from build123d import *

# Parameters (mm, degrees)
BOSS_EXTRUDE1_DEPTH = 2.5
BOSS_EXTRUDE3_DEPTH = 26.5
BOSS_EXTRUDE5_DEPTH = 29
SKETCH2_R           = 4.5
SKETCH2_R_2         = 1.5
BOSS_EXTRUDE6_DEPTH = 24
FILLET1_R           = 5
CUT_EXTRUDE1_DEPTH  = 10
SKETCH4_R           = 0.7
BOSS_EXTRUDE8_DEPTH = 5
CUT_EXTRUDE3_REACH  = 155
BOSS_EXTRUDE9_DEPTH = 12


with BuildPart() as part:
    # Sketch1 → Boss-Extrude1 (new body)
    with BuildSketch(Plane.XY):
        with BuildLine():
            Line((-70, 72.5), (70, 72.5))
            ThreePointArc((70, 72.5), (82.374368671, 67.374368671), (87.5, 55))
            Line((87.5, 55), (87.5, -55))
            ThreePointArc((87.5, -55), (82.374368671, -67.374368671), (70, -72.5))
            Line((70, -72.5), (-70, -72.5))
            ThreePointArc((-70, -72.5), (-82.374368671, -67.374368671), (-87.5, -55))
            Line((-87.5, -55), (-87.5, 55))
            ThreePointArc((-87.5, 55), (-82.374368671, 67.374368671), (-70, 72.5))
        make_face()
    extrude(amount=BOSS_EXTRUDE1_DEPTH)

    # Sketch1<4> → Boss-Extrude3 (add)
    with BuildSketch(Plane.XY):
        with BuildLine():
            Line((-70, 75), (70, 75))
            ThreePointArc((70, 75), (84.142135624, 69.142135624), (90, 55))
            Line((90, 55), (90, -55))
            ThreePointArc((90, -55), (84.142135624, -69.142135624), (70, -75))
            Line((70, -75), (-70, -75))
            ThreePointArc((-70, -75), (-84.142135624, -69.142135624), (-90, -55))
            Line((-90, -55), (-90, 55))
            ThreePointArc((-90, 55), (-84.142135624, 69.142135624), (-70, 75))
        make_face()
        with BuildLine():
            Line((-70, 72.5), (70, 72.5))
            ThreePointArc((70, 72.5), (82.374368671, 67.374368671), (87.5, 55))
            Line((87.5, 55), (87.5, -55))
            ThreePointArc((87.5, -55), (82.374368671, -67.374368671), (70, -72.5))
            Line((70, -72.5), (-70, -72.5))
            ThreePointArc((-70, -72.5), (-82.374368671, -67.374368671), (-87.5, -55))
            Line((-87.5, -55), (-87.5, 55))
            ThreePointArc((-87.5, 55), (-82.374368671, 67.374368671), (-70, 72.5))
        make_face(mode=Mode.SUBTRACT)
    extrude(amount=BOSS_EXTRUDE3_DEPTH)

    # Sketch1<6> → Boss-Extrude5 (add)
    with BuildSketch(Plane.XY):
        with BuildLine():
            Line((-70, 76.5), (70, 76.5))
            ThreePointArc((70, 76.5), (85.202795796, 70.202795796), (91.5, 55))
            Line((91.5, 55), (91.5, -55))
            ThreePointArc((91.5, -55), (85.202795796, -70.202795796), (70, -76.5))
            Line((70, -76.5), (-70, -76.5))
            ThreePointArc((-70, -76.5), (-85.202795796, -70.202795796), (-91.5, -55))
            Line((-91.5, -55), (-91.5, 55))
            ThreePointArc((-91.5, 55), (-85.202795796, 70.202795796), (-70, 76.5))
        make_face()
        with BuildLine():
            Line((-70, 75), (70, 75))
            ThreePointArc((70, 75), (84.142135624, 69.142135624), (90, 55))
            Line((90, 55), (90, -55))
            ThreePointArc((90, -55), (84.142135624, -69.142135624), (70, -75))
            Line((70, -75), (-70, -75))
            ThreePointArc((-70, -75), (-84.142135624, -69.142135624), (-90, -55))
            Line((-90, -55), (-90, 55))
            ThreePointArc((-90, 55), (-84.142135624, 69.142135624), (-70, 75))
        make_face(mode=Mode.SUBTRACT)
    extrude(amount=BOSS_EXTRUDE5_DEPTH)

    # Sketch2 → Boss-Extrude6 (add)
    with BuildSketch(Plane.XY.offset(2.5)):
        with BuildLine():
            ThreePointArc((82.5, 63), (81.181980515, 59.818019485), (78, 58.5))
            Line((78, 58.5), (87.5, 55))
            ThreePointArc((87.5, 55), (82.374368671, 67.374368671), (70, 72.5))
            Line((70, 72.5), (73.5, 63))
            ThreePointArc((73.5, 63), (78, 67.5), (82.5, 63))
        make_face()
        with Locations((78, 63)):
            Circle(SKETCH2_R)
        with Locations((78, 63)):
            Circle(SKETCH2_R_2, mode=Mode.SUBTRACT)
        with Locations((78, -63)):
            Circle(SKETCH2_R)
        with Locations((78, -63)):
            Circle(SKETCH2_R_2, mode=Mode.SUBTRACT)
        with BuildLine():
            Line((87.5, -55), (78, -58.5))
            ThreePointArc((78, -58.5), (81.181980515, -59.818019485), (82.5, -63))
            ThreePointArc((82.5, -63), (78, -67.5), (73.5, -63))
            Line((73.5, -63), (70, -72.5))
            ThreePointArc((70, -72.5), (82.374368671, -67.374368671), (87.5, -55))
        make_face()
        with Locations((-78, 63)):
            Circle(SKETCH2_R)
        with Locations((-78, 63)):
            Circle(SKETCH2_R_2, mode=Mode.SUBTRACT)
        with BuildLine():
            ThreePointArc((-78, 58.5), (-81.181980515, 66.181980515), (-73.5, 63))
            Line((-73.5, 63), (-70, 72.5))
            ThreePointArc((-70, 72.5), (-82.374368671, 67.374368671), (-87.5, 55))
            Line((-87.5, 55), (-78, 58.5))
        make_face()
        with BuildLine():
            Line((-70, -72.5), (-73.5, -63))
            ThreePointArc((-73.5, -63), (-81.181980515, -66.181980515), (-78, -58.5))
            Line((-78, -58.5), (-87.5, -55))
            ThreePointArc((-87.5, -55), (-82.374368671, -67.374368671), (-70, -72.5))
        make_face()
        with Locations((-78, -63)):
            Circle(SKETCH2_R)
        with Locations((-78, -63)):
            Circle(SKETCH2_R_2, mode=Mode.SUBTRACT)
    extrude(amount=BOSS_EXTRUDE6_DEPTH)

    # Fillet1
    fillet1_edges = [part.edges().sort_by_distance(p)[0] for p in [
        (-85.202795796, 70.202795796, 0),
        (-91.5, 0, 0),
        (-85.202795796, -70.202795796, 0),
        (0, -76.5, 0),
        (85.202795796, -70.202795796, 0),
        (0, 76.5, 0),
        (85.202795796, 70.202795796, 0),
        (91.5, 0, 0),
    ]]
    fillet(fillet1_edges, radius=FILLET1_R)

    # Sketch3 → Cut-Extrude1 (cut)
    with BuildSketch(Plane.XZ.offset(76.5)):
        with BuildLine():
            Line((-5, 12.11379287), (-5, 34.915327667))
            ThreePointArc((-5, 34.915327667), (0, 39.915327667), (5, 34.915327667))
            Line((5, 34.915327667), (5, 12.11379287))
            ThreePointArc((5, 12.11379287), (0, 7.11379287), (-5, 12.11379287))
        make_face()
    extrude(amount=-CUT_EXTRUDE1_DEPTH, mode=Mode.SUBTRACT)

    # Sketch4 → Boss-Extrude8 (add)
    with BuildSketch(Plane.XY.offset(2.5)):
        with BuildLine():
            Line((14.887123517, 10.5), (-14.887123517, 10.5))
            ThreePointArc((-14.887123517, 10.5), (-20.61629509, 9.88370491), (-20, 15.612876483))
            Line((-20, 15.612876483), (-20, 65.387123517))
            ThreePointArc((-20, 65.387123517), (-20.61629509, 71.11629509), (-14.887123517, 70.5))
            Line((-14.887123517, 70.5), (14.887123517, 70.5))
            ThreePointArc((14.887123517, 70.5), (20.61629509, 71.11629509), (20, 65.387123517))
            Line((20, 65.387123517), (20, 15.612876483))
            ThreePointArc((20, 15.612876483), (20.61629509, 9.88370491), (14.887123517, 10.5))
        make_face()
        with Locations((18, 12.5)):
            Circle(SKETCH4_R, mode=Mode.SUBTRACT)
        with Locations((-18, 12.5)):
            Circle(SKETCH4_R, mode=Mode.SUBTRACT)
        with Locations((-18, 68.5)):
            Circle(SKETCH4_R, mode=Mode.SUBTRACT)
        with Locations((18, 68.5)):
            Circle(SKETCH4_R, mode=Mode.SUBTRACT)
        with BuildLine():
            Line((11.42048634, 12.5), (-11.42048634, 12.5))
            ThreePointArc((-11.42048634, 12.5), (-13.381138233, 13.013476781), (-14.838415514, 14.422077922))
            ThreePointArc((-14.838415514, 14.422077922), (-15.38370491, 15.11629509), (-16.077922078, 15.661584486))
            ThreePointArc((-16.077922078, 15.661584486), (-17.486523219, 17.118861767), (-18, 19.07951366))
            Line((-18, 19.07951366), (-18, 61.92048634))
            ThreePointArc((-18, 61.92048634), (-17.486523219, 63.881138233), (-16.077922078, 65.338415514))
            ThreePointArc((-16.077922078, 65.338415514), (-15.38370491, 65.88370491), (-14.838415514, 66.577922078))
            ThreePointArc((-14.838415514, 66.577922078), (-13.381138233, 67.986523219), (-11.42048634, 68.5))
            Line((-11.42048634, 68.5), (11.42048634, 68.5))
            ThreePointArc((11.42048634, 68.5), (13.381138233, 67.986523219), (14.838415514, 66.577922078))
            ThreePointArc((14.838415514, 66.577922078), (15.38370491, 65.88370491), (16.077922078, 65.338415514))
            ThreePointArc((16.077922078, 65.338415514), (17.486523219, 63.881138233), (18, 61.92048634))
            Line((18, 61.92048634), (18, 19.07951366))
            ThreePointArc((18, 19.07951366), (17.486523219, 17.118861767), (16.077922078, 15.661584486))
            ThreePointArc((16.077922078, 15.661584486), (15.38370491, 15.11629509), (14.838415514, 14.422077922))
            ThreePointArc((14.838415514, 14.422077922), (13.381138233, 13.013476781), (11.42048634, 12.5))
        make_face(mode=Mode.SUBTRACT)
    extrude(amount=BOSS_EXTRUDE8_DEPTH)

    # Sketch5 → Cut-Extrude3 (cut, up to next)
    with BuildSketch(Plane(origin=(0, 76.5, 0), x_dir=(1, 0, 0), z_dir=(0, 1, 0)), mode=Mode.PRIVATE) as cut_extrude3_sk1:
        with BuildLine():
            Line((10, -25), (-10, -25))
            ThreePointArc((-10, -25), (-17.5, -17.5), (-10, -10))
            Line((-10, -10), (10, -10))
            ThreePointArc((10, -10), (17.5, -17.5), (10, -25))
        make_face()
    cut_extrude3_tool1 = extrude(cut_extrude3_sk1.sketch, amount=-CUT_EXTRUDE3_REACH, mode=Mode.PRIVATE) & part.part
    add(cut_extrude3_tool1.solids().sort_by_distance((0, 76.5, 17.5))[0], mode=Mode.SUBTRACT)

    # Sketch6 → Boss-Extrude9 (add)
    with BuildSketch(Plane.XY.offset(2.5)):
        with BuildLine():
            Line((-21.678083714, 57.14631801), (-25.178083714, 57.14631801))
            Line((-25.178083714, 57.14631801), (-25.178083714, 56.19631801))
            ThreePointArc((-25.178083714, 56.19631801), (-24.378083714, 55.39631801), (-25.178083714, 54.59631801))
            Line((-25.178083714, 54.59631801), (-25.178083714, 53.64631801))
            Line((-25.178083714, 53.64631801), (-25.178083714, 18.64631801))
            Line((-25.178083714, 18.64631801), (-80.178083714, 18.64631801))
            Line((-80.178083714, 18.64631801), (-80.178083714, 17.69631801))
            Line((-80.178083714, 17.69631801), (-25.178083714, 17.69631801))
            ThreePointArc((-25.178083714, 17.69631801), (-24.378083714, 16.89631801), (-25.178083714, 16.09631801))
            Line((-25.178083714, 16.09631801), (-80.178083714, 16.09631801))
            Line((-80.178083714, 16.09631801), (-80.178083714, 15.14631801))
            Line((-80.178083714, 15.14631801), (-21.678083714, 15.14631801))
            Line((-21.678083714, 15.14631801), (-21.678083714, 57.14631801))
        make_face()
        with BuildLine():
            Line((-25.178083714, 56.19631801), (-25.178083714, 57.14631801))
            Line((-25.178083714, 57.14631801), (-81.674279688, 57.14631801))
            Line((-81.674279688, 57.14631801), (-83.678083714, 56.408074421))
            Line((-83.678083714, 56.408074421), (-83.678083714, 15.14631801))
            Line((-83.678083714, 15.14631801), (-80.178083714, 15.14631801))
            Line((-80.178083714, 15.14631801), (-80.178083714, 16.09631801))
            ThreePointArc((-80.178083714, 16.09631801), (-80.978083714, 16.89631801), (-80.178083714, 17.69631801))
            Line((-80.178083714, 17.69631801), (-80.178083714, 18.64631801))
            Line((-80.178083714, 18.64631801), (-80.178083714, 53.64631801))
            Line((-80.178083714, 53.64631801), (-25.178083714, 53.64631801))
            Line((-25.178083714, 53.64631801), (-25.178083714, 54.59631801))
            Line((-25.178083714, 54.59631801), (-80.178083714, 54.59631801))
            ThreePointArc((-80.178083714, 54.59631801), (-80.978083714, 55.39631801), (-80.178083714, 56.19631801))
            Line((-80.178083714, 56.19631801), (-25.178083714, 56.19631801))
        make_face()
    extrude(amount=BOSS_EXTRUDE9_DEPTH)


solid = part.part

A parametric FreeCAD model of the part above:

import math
import FreeCAD as App
import Part
import Sketcher


def edges_at(feature, points):
    """Names of the edges that pass closest to the given points."""
    edges = feature.Shape.Edges
    near = lambda p: min(range(len(edges)), key=lambda i: edges[i].distToShape(Part.Vertex(*p))[0])
    return sorted({f"Edge{near(p) + 1}" for p in points})

doc = App.newDocument("Part")
body = doc.addObject("PartDesign::Body", "Body")

# Sketch on XY plane
sketch1 = body.newObject("Sketcher::SketchObject", "Sketch")
sketch1.AttachmentSupport = (doc.getObject("XY_Plane"), [""])
sketch1.MapMode = "FlatFace"
sketch1.addGeometry(Part.LineSegment(App.Vector(70, 72, 0), App.Vector(-70, 72, 0)), False)
sketch1.addGeometry(Part.ArcOfCircle(Part.Circle(App.Vector(-70, 55, 0), App.Vector(0, 0, 1), 17), math.radians(90), math.radians(180)), False)
sketch1.addGeometry(Part.LineSegment(App.Vector(-88, 55, 0), App.Vector(-88, -55, 0)), False)
sketch1.addGeometry(Part.ArcOfCircle(Part.Circle(App.Vector(-70, -55, 0), App.Vector(0, 0, 1), 17), math.radians(180), math.radians(270)), False)
sketch1.addGeometry(Part.LineSegment(App.Vector(-70, -72, 0), App.Vector(70, -72, 0)), False)
sketch1.addGeometry(Part.ArcOfCircle(Part.Circle(App.Vector(70, -55, 0), App.Vector(0, 0, 1), 17), math.radians(-90), math.radians(0)), False)
sketch1.addGeometry(Part.LineSegment(App.Vector(88, -55, 0), App.Vector(88, 55, 0)), False)
sketch1.addGeometry(Part.ArcOfCircle(Part.Circle(App.Vector(70, 55, 0), App.Vector(0, 0, 1), 17), math.radians(0), math.radians(90)), False)
sketch1.addConstraint(Sketcher.Constraint("Tangent", 0, 2, 1, 1))
sketch1.addConstraint(Sketcher.Constraint("Tangent", 1, 2, 2, 1))
sketch1.addConstraint(Sketcher.Constraint("Tangent", 2, 2, 3, 1))
sketch1.addConstraint(Sketcher.Constraint("Tangent", 3, 2, 4, 1))
sketch1.addConstraint(Sketcher.Constraint("Tangent", 4, 2, 5, 1))
sketch1.addConstraint(Sketcher.Constraint("Tangent", 5, 2, 6, 1))
sketch1.addConstraint(Sketcher.Constraint("Tangent", 6, 2, 7, 1))
sketch1.addConstraint(Sketcher.Constraint("Tangent", 7, 2, 0, 1))
sketch1.addConstraint(Sketcher.Constraint("Horizontal", 0))
sketch1.addConstraint(Sketcher.Constraint("Vertical", 2))
sketch1.addConstraint(Sketcher.Constraint("Horizontal", 4))
sketch1.addConstraint(Sketcher.Constraint("Vertical", 6))
sketch1.addConstraint(Sketcher.Constraint("Equal", 1, 3))
sketch1.addConstraint(Sketcher.Constraint("Equal", 3, 5))
sketch1.addConstraint(Sketcher.Constraint("Equal", 5, 7))
sketch1.addConstraint(Sketcher.Constraint("Symmetric", 1, 3, 5, 3, -1, 1))
sketch1.addConstraint(Sketcher.Constraint("Radius", 1, 17.5))
sketch1.addConstraint(Sketcher.Constraint("DistanceX", 0, 2, 0, 1, 140.0))
sketch1.addConstraint(Sketcher.Constraint("DistanceY", 2, 2, 2, 1, 110.0))
pad1 = body.newObject("PartDesign::Pad", "Pad")
pad1.Profile = sketch1
pad1.Length = 2.5

# Sketch on XY plane
sketch2 = body.newObject("Sketcher::SketchObject", "Sketch001")
sketch2.AttachmentSupport = (doc.getObject("XY_Plane"), [""])
sketch2.MapMode = "FlatFace"
sketch2.addGeometry(Part.LineSegment(App.Vector(70, 75, 0), App.Vector(-70, 75, 0)), False)
sketch2.addGeometry(Part.ArcOfCircle(Part.Circle(App.Vector(-70, 55, 0), App.Vector(0, 0, 1), 20), math.radians(90), math.radians(180)), False)
sketch2.addGeometry(Part.LineSegment(App.Vector(-90, 55, 0), App.Vector(-90, -55, 0)), False)
sketch2.addGeometry(Part.ArcOfCircle(Part.Circle(App.Vector(-70, -55, 0), App.Vector(0, 0, 1), 20), math.radians(180), math.radians(270)), False)
sketch2.addGeometry(Part.LineSegment(App.Vector(-70, -75, 0), App.Vector(70, -75, 0)), False)
sketch2.addGeometry(Part.ArcOfCircle(Part.Circle(App.Vector(70, -55, 0), App.Vector(0, 0, 1), 20), math.radians(-90), math.radians(0)), False)
sketch2.addGeometry(Part.LineSegment(App.Vector(90, -55, 0), App.Vector(90, 55, 0)), False)
sketch2.addGeometry(Part.ArcOfCircle(Part.Circle(App.Vector(70, 55, 0), App.Vector(0, 0, 1), 20), math.radians(0), math.radians(90)), False)
sketch2.addGeometry(Part.LineSegment(App.Vector(-70, 72, 0), App.Vector(70, 72, 0)), False)
sketch2.addGeometry(Part.ArcOfCircle(Part.Circle(App.Vector(70, 55, 0), App.Vector(0, 0, 1), 17), math.radians(0), math.radians(90)), False)
sketch2.addGeometry(Part.LineSegment(App.Vector(88, 55, 0), App.Vector(88, -55, 0)), False)
sketch2.addGeometry(Part.ArcOfCircle(Part.Circle(App.Vector(70, -55, 0), App.Vector(0, 0, 1), 17), math.radians(-90), math.radians(0)), False)
sketch2.addGeometry(Part.LineSegment(App.Vector(70, -72, 0), App.Vector(-70, -72, 0)), False)
sketch2.addGeometry(Part.ArcOfCircle(Part.Circle(App.Vector(-70, -55, 0), App.Vector(0, 0, 1), 17), math.radians(180), math.radians(270)), False)
sketch2.addGeometry(Part.LineSegment(App.Vector(-88, -55, 0), App.Vector(-88, 55, 0)), False)
sketch2.addGeometry(Part.ArcOfCircle(Part.Circle(App.Vector(-70, 55, 0), App.Vector(0, 0, 1), 17), math.radians(90), math.radians(180)), False)
sketch2.addConstraint(Sketcher.Constraint("Tangent", 0, 2, 1, 1))
sketch2.addConstraint(Sketcher.Constraint("Tangent", 1, 2, 2, 1))
sketch2.addConstraint(Sketcher.Constraint("Tangent", 2, 2, 3, 1))
sketch2.addConstraint(Sketcher.Constraint("Tangent", 3, 2, 4, 1))
sketch2.addConstraint(Sketcher.Constraint("Tangent", 4, 2, 5, 1))
sketch2.addConstraint(Sketcher.Constraint("Tangent", 5, 2, 6, 1))
sketch2.addConstraint(Sketcher.Constraint("Tangent", 6, 2, 7, 1))
sketch2.addConstraint(Sketcher.Constraint("Tangent", 7, 2, 0, 1))
sketch2.addConstraint(Sketcher.Constraint("Tangent", 8, 2, 9, 2))
sketch2.addConstraint(Sketcher.Constraint("Tangent", 9, 1, 10, 1))
sketch2.addConstraint(Sketcher.Constraint("Tangent", 10, 2, 11, 2))
sketch2.addConstraint(Sketcher.Constraint("Tangent", 11, 1, 12, 1))
sketch2.addConstraint(Sketcher.Constraint("Tangent", 12, 2, 13, 2))
sketch2.addConstraint(Sketcher.Constraint("Tangent", 13, 1, 14, 1))
sketch2.addConstraint(Sketcher.Constraint("Tangent", 14, 2, 15, 2))
sketch2.addConstraint(Sketcher.Constraint("Tangent", 15, 1, 8, 1))
sketch2.addConstraint(Sketcher.Constraint("Horizontal", 0))
sketch2.addConstraint(Sketcher.Constraint("Vertical", 2))
sketch2.addConstraint(Sketcher.Constraint("Horizontal", 4))
sketch2.addConstraint(Sketcher.Constraint("Vertical", 6))
sketch2.addConstraint(Sketcher.Constraint("Horizontal", 8))
sketch2.addConstraint(Sketcher.Constraint("Vertical", 10))
sketch2.addConstraint(Sketcher.Constraint("Horizontal", 12))
sketch2.addConstraint(Sketcher.Constraint("Vertical", 14))
sketch2.addConstraint(Sketcher.Constraint("Coincident", 9, 3, 7, 3))
sketch2.addConstraint(Sketcher.Constraint("Coincident", 11, 3, 5, 3))
sketch2.addConstraint(Sketcher.Constraint("Coincident", 13, 3, 3, 3))
sketch2.addConstraint(Sketcher.Constraint("Equal", 1, 3))
sketch2.addConstraint(Sketcher.Constraint("Equal", 3, 5))
sketch2.addConstraint(Sketcher.Constraint("Equal", 5, 7))
sketch2.addConstraint(Sketcher.Constraint("Equal", 13, 15))
sketch2.addConstraint(Sketcher.Constraint("Symmetric", 1, 3, 5, 3, -1, 1))
sketch2.addConstraint(Sketcher.Constraint("Radius", 1, 20.0))
sketch2.addConstraint(Sketcher.Constraint("Radius", 9, 17.5))
sketch2.addConstraint(Sketcher.Constraint("DistanceX", 0, 2, 0, 1, 140.0))
sketch2.addConstraint(Sketcher.Constraint("DistanceY", 2, 2, 2, 1, 110.0))
pad2 = body.newObject("PartDesign::Pad", "Pad001")
pad2.Profile = sketch2
pad2.Length = 26.5

# Sketch on XY plane
sketch3 = body.newObject("Sketcher::SketchObject", "Sketch002")
sketch3.AttachmentSupport = (doc.getObject("XY_Plane"), [""])
sketch3.MapMode = "FlatFace"
sketch3.addGeometry(Part.LineSegment(App.Vector(70, 76, 0), App.Vector(-70, 76, 0)), False)
sketch3.addGeometry(Part.ArcOfCircle(Part.Circle(App.Vector(-70, 55, 0), App.Vector(0, 0, 1), 21), math.radians(90), math.radians(180)), False)
sketch3.addGeometry(Part.LineSegment(App.Vector(-92, 55, 0), App.Vector(-92, -55, 0)), False)
sketch3.addGeometry(Part.ArcOfCircle(Part.Circle(App.Vector(-70, -55, 0), App.Vector(0, 0, 1), 21), math.radians(180), math.radians(270)), False)
sketch3.addGeometry(Part.LineSegment(App.Vector(-70, -76, 0), App.Vector(70, -76, 0)), False)
sketch3.addGeometry(Part.ArcOfCircle(Part.Circle(App.Vector(70, -55, 0), App.Vector(0, 0, 1), 21), math.radians(-90), math.radians(0)), False)
sketch3.addGeometry(Part.LineSegment(App.Vector(92, -55, 0), App.Vector(92, 55, 0)), False)
sketch3.addGeometry(Part.ArcOfCircle(Part.Circle(App.Vector(70, 55, 0), App.Vector(0, 0, 1), 21), math.radians(0), math.radians(90)), False)
sketch3.addGeometry(Part.LineSegment(App.Vector(-70, 75, 0), App.Vector(70, 75, 0)), False)
sketch3.addGeometry(Part.ArcOfCircle(Part.Circle(App.Vector(70, 55, 0), App.Vector(0, 0, 1), 20), math.radians(0), math.radians(90)), False)
sketch3.addGeometry(Part.LineSegment(App.Vector(90, 55, 0), App.Vector(90, -55, 0)), False)
sketch3.addGeometry(Part.ArcOfCircle(Part.Circle(App.Vector(70, -55, 0), App.Vector(0, 0, 1), 20), math.radians(-90), math.radians(0)), False)
sketch3.addGeometry(Part.LineSegment(App.Vector(70, -75, 0), App.Vector(-70, -75, 0)), False)
sketch3.addGeometry(Part.ArcOfCircle(Part.Circle(App.Vector(-70, -55, 0), App.Vector(0, 0, 1), 20), math.radians(180), math.radians(270)), False)
sketch3.addGeometry(Part.LineSegment(App.Vector(-90, -55, 0), App.Vector(-90, 55, 0)), False)
sketch3.addGeometry(Part.ArcOfCircle(Part.Circle(App.Vector(-70, 55, 0), App.Vector(0, 0, 1), 20), math.radians(90), math.radians(180)), False)
sketch3.addConstraint(Sketcher.Constraint("Tangent", 0, 2, 1, 1))
sketch3.addConstraint(Sketcher.Constraint("Tangent", 1, 2, 2, 1))
sketch3.addConstraint(Sketcher.Constraint("Tangent", 2, 2, 3, 1))
sketch3.addConstraint(Sketcher.Constraint("Tangent", 3, 2, 4, 1))
sketch3.addConstraint(Sketcher.Constraint("Tangent", 4, 2, 5, 1))
sketch3.addConstraint(Sketcher.Constraint("Tangent", 5, 2, 6, 1))
sketch3.addConstraint(Sketcher.Constraint("Tangent", 6, 2, 7, 1))
sketch3.addConstraint(Sketcher.Constraint("Tangent", 7, 2, 0, 1))
sketch3.addConstraint(Sketcher.Constraint("Tangent", 8, 2, 9, 2))
sketch3.addConstraint(Sketcher.Constraint("Tangent", 9, 1, 10, 1))
sketch3.addConstraint(Sketcher.Constraint("Tangent", 10, 2, 11, 2))
sketch3.addConstraint(Sketcher.Constraint("Tangent", 11, 1, 12, 1))
sketch3.addConstraint(Sketcher.Constraint("Tangent", 12, 2, 13, 2))
sketch3.addConstraint(Sketcher.Constraint("Tangent", 13, 1, 14, 1))
sketch3.addConstraint(Sketcher.Constraint("Tangent", 14, 2, 15, 2))
sketch3.addConstraint(Sketcher.Constraint("Tangent", 15, 1, 8, 1))
sketch3.addConstraint(Sketcher.Constraint("Horizontal", 0))
sketch3.addConstraint(Sketcher.Constraint("Vertical", 2))
sketch3.addConstraint(Sketcher.Constraint("Horizontal", 4))
sketch3.addConstraint(Sketcher.Constraint("Vertical", 6))
sketch3.addConstraint(Sketcher.Constraint("Horizontal", 8))
sketch3.addConstraint(Sketcher.Constraint("Vertical", 10))
sketch3.addConstraint(Sketcher.Constraint("Horizontal", 12))
sketch3.addConstraint(Sketcher.Constraint("Vertical", 14))
sketch3.addConstraint(Sketcher.Constraint("Coincident", 9, 3, 7, 3))
sketch3.addConstraint(Sketcher.Constraint("Coincident", 11, 3, 5, 3))
sketch3.addConstraint(Sketcher.Constraint("Coincident", 13, 3, 3, 3))
sketch3.addConstraint(Sketcher.Constraint("Equal", 1, 3))
sketch3.addConstraint(Sketcher.Constraint("Equal", 3, 5))
sketch3.addConstraint(Sketcher.Constraint("Equal", 5, 7))
sketch3.addConstraint(Sketcher.Constraint("Equal", 13, 15))
sketch3.addConstraint(Sketcher.Constraint("Symmetric", 1, 3, 5, 3, -1, 1))
sketch3.addConstraint(Sketcher.Constraint("Radius", 9, 20.0))
sketch3.addConstraint(Sketcher.Constraint("Radius", 1, 21.5))
sketch3.addConstraint(Sketcher.Constraint("DistanceX", 0, 2, 0, 1, 140.0))
sketch3.addConstraint(Sketcher.Constraint("DistanceY", 2, 2, 2, 1, 110.0))
pad3 = body.newObject("PartDesign::Pad", "Pad002")
pad3.Profile = sketch3
pad3.Length = 29

# Sketch on XY plane
sketch4 = body.newObject("Sketcher::SketchObject", "Sketch003")
sketch4.AttachmentSupport = (doc.getObject("XY_Plane"), [""])
sketch4.MapMode = "FlatFace"
sketch4.AttachmentOffset = App.Placement(App.Vector(0, 0, 2.5), App.Rotation())
sketch4.addGeometry(Part.LineSegment(App.Vector(78, 58.5, 0), App.Vector(87.5, 55, 0)), False)
sketch4.addGeometry(Part.ArcOfCircle(Part.Circle(App.Vector(70, 55, 0), App.Vector(0, 0, 1), 17.5), math.radians(0), math.radians(90)), False)
sketch4.addGeometry(Part.LineSegment(App.Vector(70, 72.5, 0), App.Vector(73.5, 63, 0)), False)
sketch4.addGeometry(Part.ArcOfCircle(Part.Circle(App.Vector(78, 63, 0), App.Vector(0, 0, 1), 4.5), math.radians(180), math.radians(270)), False)
sketch4.addGeometry(Part.Circle(App.Vector(78, 63, 0), App.Vector(0, 0, 1), 1.5), False)
sketch4.addGeometry(Part.ArcOfCircle(Part.Circle(App.Vector(78, -63, 0), App.Vector(0, 0, 1), 4.5), math.radians(90), math.radians(180)), False)
sketch4.addGeometry(Part.LineSegment(App.Vector(73.5, -63, 0), App.Vector(70, -72.5, 0)), False)
sketch4.addGeometry(Part.ArcOfCircle(Part.Circle(App.Vector(70, -55, 0), App.Vector(0, 0, 1), 17.5), math.radians(-90), math.radians(0)), False)
sketch4.addGeometry(Part.LineSegment(App.Vector(87.5, -55, 0), App.Vector(78, -58.5, 0)), False)
sketch4.addGeometry(Part.Circle(App.Vector(78, -63, 0), App.Vector(0, 0, 1), 1.5), False)
sketch4.addGeometry(Part.ArcOfCircle(Part.Circle(App.Vector(-78, 63, 0), App.Vector(0, 0, 1), 4.5), math.radians(-90), math.radians(0)), False)
sketch4.addGeometry(Part.LineSegment(App.Vector(-73.5, 63, 0), App.Vector(-70, 72.5, 0)), False)
sketch4.addGeometry(Part.ArcOfCircle(Part.Circle(App.Vector(-70, 55, 0), App.Vector(0, 0, 1), 17.5), math.radians(90), math.radians(180)), False)
sketch4.addGeometry(Part.LineSegment(App.Vector(-87.5, 55, 0), App.Vector(-78, 58.5, 0)), False)
sketch4.addGeometry(Part.Circle(App.Vector(-78, 63, 0), App.Vector(0, 0, 1), 1.5), False)
sketch4.addGeometry(Part.LineSegment(App.Vector(-70, -72.5, 0), App.Vector(-73.5, -63, 0)), False)
sketch4.addGeometry(Part.ArcOfCircle(Part.Circle(App.Vector(-78, -63, 0), App.Vector(0, 0, 1), 4.5), math.radians(0), math.radians(90)), False)
sketch4.addGeometry(Part.LineSegment(App.Vector(-78, -58.5, 0), App.Vector(-87.5, -55, 0)), False)
sketch4.addGeometry(Part.ArcOfCircle(Part.Circle(App.Vector(-70, -55, 0), App.Vector(0, 0, 1), 17.5), math.radians(180), math.radians(270)), False)
sketch4.addGeometry(Part.Circle(App.Vector(-78, -63, 0), App.Vector(0, 0, 1), 1.5), False)
sketch4.addConstraint(Sketcher.Constraint("Coincident", 0, 2, 1, 1))
sketch4.addConstraint(Sketcher.Constraint("Coincident", 1, 2, 2, 1))
sketch4.addConstraint(Sketcher.Constraint("Coincident", 2, 2, 3, 1))
sketch4.addConstraint(Sketcher.Constraint("Coincident", 3, 2, 0, 1))
sketch4.addConstraint(Sketcher.Constraint("Coincident", 5, 2, 6, 1))
sketch4.addConstraint(Sketcher.Constraint("Coincident", 6, 2, 7, 1))
sketch4.addConstraint(Sketcher.Constraint("Coincident", 7, 2, 8, 1))
sketch4.addConstraint(Sketcher.Constraint("Coincident", 8, 2, 5, 1))
sketch4.addConstraint(Sketcher.Constraint("Coincident", 10, 2, 11, 1))
sketch4.addConstraint(Sketcher.Constraint("Coincident", 11, 2, 12, 1))
sketch4.addConstraint(Sketcher.Constraint("Coincident", 12, 2, 13, 1))
sketch4.addConstraint(Sketcher.Constraint("Coincident", 13, 2, 10, 1))
sketch4.addConstraint(Sketcher.Constraint("Coincident", 15, 2, 16, 1))
sketch4.addConstraint(Sketcher.Constraint("Coincident", 16, 2, 17, 1))
sketch4.addConstraint(Sketcher.Constraint("Coincident", 17, 2, 18, 1))
sketch4.addConstraint(Sketcher.Constraint("Coincident", 18, 2, 15, 1))
sketch4.addConstraint(Sketcher.Constraint("Coincident", 4, 3, 3, 3))
sketch4.addConstraint(Sketcher.Constraint("Coincident", 9, 3, 5, 3))
sketch4.addConstraint(Sketcher.Constraint("Coincident", 14, 3, 10, 3))
sketch4.addConstraint(Sketcher.Constraint("Coincident", 19, 3, 16, 3))
sketch4.addConstraint(Sketcher.Constraint("Equal", 3, 5))
sketch4.addConstraint(Sketcher.Constraint("Equal", 1, 7))
sketch4.addConstraint(Sketcher.Constraint("Equal", 4, 9))
sketch4.addConstraint(Sketcher.Constraint("Equal", 5, 10))
sketch4.addConstraint(Sketcher.Constraint("Equal", 7, 12))
sketch4.addConstraint(Sketcher.Constraint("Equal", 9, 14))
sketch4.addConstraint(Sketcher.Constraint("Equal", 10, 16))
sketch4.addConstraint(Sketcher.Constraint("Equal", 12, 18))
sketch4.addConstraint(Sketcher.Constraint("Equal", 14, 19))
sketch4.addConstraint(Sketcher.Constraint("Symmetric", 5, 3, 10, 3, -1, 1))
sketch4.addConstraint(Sketcher.Constraint("Symmetric", 7, 3, 12, 3, -1, 1))
sketch4.addConstraint(Sketcher.Constraint("Symmetric", 3, 3, 16, 3, -1, 1))
sketch4.addConstraint(Sketcher.Constraint("Symmetric", 1, 3, 18, 3, -1, 1))
sketch4.addConstraint(Sketcher.Constraint("Symmetric", 3, 3, 10, 3, -2))
sketch4.addConstraint(Sketcher.Constraint("Symmetric", 1, 3, 12, 3, -2))
sketch4.addConstraint(Sketcher.Constraint("Perpendicular", 0, 6))
sketch4.addConstraint(Sketcher.Constraint("Perpendicular", 2, 8))
sketch4.addConstraint(Sketcher.Constraint("Parallel", 6, 11))
sketch4.addConstraint(Sketcher.Constraint("Parallel", 8, 13))
sketch4.addConstraint(Sketcher.Constraint("Perpendicular", 13, 15))
sketch4.addConstraint(Sketcher.Constraint("Perpendicular", 11, 17))
sketch4.addConstraint(Sketcher.Constraint("Horizontal", 12, 3, 0, 2))
sketch4.addConstraint(Sketcher.Constraint("Horizontal", 14, 3, 2, 2))
sketch4.addConstraint(Sketcher.Constraint("Horizontal", 19, 3, 5, 2))
sketch4.addConstraint(Sketcher.Constraint("Horizontal", 18, 3, 7, 2))
sketch4.addConstraint(Sketcher.Constraint("Horizontal", 2, 2, 10, 2))
sketch4.addConstraint(Sketcher.Constraint("Horizontal", 0, 2, 12, 2))
sketch4.addConstraint(Sketcher.Constraint("Horizontal", 5, 2, 15, 2))
sketch4.addConstraint(Sketcher.Constraint("Horizontal", 7, 2, 17, 2))
sketch4.addConstraint(Sketcher.Constraint("Vertical", 7, 3, 1, 2))
sketch4.addConstraint(Sketcher.Constraint("Vertical", 9, 3, 3, 2))
sketch4.addConstraint(Sketcher.Constraint("Vertical", 1, 2, 6, 2))
sketch4.addConstraint(Sketcher.Constraint("Diameter", 4, 3.0))
sketch4.addConstraint(Sketcher.Constraint("Radius", 1, 17.5))
sketch4.addConstraint(Sketcher.Constraint("Radius", 3, 4.5))
sketch4.addConstraint(Sketcher.Constraint("DistanceX", -1, 1, 1, 3, 70.0))
sketch4.addConstraint(Sketcher.Constraint("DistanceY", -1, 1, 1, 3, 55.0))
sketch4.addConstraint(Sketcher.Constraint("DistanceX", -1, 1, 3, 3, 78.0))
pad4 = body.newObject("PartDesign::Pad", "Pad003")
pad4.Profile = sketch4
pad4.Length = 24
doc.recompute()

fillet = body.newObject("PartDesign::Fillet", "Fillet")
fillet.Base = (pad4, edges_at(pad4, [
    (-85.203, 70.203, 0),
    (-91.5, 0, 0),
    (-85.203, -70.203, 0),
    (0, -76.5, 0),
    (85.203, -70.203, 0),
    (0, 76.5, 0),
    (85.203, 70.203, 0),
    (91.5, 0, 0),
]))
fillet.Radius = 5

# Sketch on XZ plane
sketch5 = body.newObject("Sketcher::SketchObject", "Sketch004")
sketch5.AttachmentSupport = (doc.getObject("XZ_Plane"), [""])
sketch5.MapMode = "FlatFace"
sketch5.AttachmentOffset = App.Placement(App.Vector(0, 0, 76.5), App.Rotation())
sketch5.addGeometry(Part.LineSegment(App.Vector(-5, 35, 0), App.Vector(-5, 12, 0)), False)
sketch5.addGeometry(Part.ArcOfCircle(Part.Circle(App.Vector(0, 12, 0), App.Vector(0, 0, 1), 5), math.radians(180), math.radians(360)), False)
sketch5.addGeometry(Part.LineSegment(App.Vector(5, 12, 0), App.Vector(5, 35, 0)), False)
sketch5.addGeometry(Part.ArcOfCircle(Part.Circle(App.Vector(0, 35, 0), App.Vector(0, 0, 1), 5), math.radians(0), math.radians(180)), False)
sketch5.addConstraint(Sketcher.Constraint("Tangent", 0, 2, 1, 1))
sketch5.addConstraint(Sketcher.Constraint("Tangent", 1, 2, 2, 1))
sketch5.addConstraint(Sketcher.Constraint("Tangent", 2, 2, 3, 1))
sketch5.addConstraint(Sketcher.Constraint("Tangent", 3, 2, 0, 1))
sketch5.addConstraint(Sketcher.Constraint("Vertical", 0))
sketch5.addConstraint(Sketcher.Constraint("Vertical", 2))
sketch5.addConstraint(Sketcher.Constraint("PointOnObject", 1, 3, -2))
sketch5.addConstraint(Sketcher.Constraint("Radius", 1, 5.0))
sketch5.addConstraint(Sketcher.Constraint("DistanceY", 0, 2, 0, 1, 22.801535))
sketch5.addConstraint(Sketcher.Constraint("DistanceY", -1, 1, 1, 3, 12.113793))
pocket1 = body.newObject("PartDesign::Pocket", "Pocket")
pocket1.Profile = sketch5
pocket1.Length = 10

# Sketch on XY plane
sketch6 = body.newObject("Sketcher::SketchObject", "Sketch005")
sketch6.AttachmentSupport = (doc.getObject("XY_Plane"), [""])
sketch6.MapMode = "FlatFace"
sketch6.AttachmentOffset = App.Placement(App.Vector(0, 0, 2.5), App.Rotation())
sketch6.addGeometry(Part.LineSegment(App.Vector(-14.9, 10.5, 0), App.Vector(14.9, 10.5, 0)), False)
sketch6.addGeometry(Part.ArcOfCircle(Part.Circle(App.Vector(18, 12.5, 0), App.Vector(0, 0, 1), 3.7), math.radians(-147), math.radians(57)), False)
sketch6.addGeometry(Part.LineSegment(App.Vector(20, 15.6, 0), App.Vector(20, 65.4, 0)), False)
sketch6.addGeometry(Part.ArcOfCircle(Part.Circle(App.Vector(18, 68.5, 0), App.Vector(0, 0, 1), 3.7), math.radians(-57), math.radians(147)), False)
sketch6.addGeometry(Part.LineSegment(App.Vector(14.9, 70.5, 0), App.Vector(-14.9, 70.5, 0)), False)
sketch6.addGeometry(Part.ArcOfCircle(Part.Circle(App.Vector(-18, 68.5, 0), App.Vector(0, 0, 1), 3.7), math.radians(33), math.radians(237)), False)
sketch6.addGeometry(Part.LineSegment(App.Vector(-20, 65.4, 0), App.Vector(-20, 15.6, 0)), False)
sketch6.addGeometry(Part.ArcOfCircle(Part.Circle(App.Vector(-18, 12.5, 0), App.Vector(0, 0, 1), 3.7), math.radians(123), math.radians(327)), False)
sketch6.addGeometry(Part.Circle(App.Vector(18, 12.5, 0), App.Vector(0, 0, 1), 0.7), False)
sketch6.addGeometry(Part.LineSegment(App.Vector(11.4, 12.5, 0), App.Vector(-11.4, 12.5, 0)), False)
sketch6.addGeometry(Part.ArcOfCircle(Part.Circle(App.Vector(-11.4, 16.5, 0), App.Vector(0, 0, 1), 4), math.radians(-149), math.radians(-90)), False)
sketch6.addGeometry(Part.ArcOfCircle(Part.Circle(App.Vector(-18, 12.5, 0), App.Vector(0, 0, 1), 3.7), math.radians(31), math.radians(59)), False)
sketch6.addGeometry(Part.ArcOfCircle(Part.Circle(App.Vector(-14, 19.1, 0), App.Vector(0, 0, 1), 4), math.radians(180), math.radians(239)), False)
sketch6.addGeometry(Part.LineSegment(App.Vector(-18, 19.1, 0), App.Vector(-18, 61.9, 0)), False)
sketch6.addGeometry(Part.ArcOfCircle(Part.Circle(App.Vector(-14, 61.9, 0), App.Vector(0, 0, 1), 4), math.radians(121), math.radians(180)), False)
sketch6.addGeometry(Part.ArcOfCircle(Part.Circle(App.Vector(-18, 68.5, 0), App.Vector(0, 0, 1), 3.7), math.radians(-59), math.radians(-31)), False)
sketch6.addGeometry(Part.ArcOfCircle(Part.Circle(App.Vector(-11.4, 64.5, 0), App.Vector(0, 0, 1), 4), math.radians(90), math.radians(149)), False)
sketch6.addGeometry(Part.LineSegment(App.Vector(-11.4, 68.5, 0), App.Vector(11.4, 68.5, 0)), False)
sketch6.addGeometry(Part.ArcOfCircle(Part.Circle(App.Vector(11.4, 64.5, 0), App.Vector(0, 0, 1), 4), math.radians(31), math.radians(90)), False)
sketch6.addGeometry(Part.ArcOfCircle(Part.Circle(App.Vector(18, 68.5, 0), App.Vector(0, 0, 1), 3.7), math.radians(-149), math.radians(-121)), False)
sketch6.addGeometry(Part.ArcOfCircle(Part.Circle(App.Vector(14, 61.9, 0), App.Vector(0, 0, 1), 4), math.radians(0), math.radians(59)), False)
sketch6.addGeometry(Part.LineSegment(App.Vector(18, 61.9, 0), App.Vector(18, 19.1, 0)), False)
sketch6.addGeometry(Part.ArcOfCircle(Part.Circle(App.Vector(14, 19.1, 0), App.Vector(0, 0, 1), 4), math.radians(-59), math.radians(0)), False)
sketch6.addGeometry(Part.ArcOfCircle(Part.Circle(App.Vector(18, 12.5, 0), App.Vector(0, 0, 1), 3.7), math.radians(121), math.radians(149)), False)
sketch6.addGeometry(Part.ArcOfCircle(Part.Circle(App.Vector(11.4, 16.5, 0), App.Vector(0, 0, 1), 4), math.radians(-90), math.radians(-31)), False)
sketch6.addGeometry(Part.Circle(App.Vector(-18, 12.5, 0), App.Vector(0, 0, 1), 0.7), False)
sketch6.addGeometry(Part.Circle(App.Vector(18, 68.5, 0), App.Vector(0, 0, 1), 0.7), False)
sketch6.addGeometry(Part.Circle(App.Vector(-18, 68.5, 0), App.Vector(0, 0, 1), 0.7), False)
sketch6.addConstraint(Sketcher.Constraint("Coincident", 0, 2, 1, 1))
sketch6.addConstraint(Sketcher.Constraint("Coincident", 1, 2, 2, 1))
sketch6.addConstraint(Sketcher.Constraint("Coincident", 2, 2, 3, 1))
sketch6.addConstraint(Sketcher.Constraint("Coincident", 3, 2, 4, 1))
sketch6.addConstraint(Sketcher.Constraint("Coincident", 4, 2, 5, 1))
sketch6.addConstraint(Sketcher.Constraint("Coincident", 5, 2, 6, 1))
sketch6.addConstraint(Sketcher.Constraint("Coincident", 6, 2, 7, 1))
sketch6.addConstraint(Sketcher.Constraint("Coincident", 7, 2, 0, 1))
sketch6.addConstraint(Sketcher.Constraint("Tangent", 9, 2, 10, 2))
sketch6.addConstraint(Sketcher.Constraint("Tangent", 10, 1, 11, 1))
sketch6.addConstraint(Sketcher.Constraint("Tangent", 11, 2, 12, 2))
sketch6.addConstraint(Sketcher.Constraint("Tangent", 12, 1, 13, 1))
sketch6.addConstraint(Sketcher.Constraint("Tangent", 13, 2, 14, 2))
sketch6.addConstraint(Sketcher.Constraint("Tangent", 14, 1, 15, 1))
sketch6.addConstraint(Sketcher.Constraint("Tangent", 15, 2, 16, 2))
sketch6.addConstraint(Sketcher.Constraint("Tangent", 16, 1, 17, 1))
sketch6.addConstraint(Sketcher.Constraint("Tangent", 17, 2, 18, 2))
sketch6.addConstraint(Sketcher.Constraint("Tangent", 18, 1, 19, 1))
sketch6.addConstraint(Sketcher.Constraint("Tangent", 19, 2, 20, 2))
sketch6.addConstraint(Sketcher.Constraint("Tangent", 20, 1, 21, 1))
sketch6.addConstraint(Sketcher.Constraint("Tangent", 21, 2, 22, 2))
sketch6.addConstraint(Sketcher.Constraint("Tangent", 22, 1, 23, 1))
sketch6.addConstraint(Sketcher.Constraint("Tangent", 23, 2, 24, 2))
sketch6.addConstraint(Sketcher.Constraint("Tangent", 24, 1, 9, 1))
sketch6.addConstraint(Sketcher.Constraint("Horizontal", 0))
sketch6.addConstraint(Sketcher.Constraint("Vertical", 2))
sketch6.addConstraint(Sketcher.Constraint("Horizontal", 4))
sketch6.addConstraint(Sketcher.Constraint("Vertical", 6))
sketch6.addConstraint(Sketcher.Constraint("Horizontal", 9))
sketch6.addConstraint(Sketcher.Constraint("Vertical", 13))
sketch6.addConstraint(Sketcher.Constraint("Horizontal", 17))
sketch6.addConstraint(Sketcher.Constraint("Vertical", 21))
sketch6.addConstraint(Sketcher.Constraint("Coincident", 8, 3, 1, 3))
sketch6.addConstraint(Sketcher.Constraint("Coincident", 11, 3, 7, 3))
sketch6.addConstraint(Sketcher.Constraint("Coincident", 15, 3, 5, 3))
sketch6.addConstraint(Sketcher.Constraint("Coincident", 19, 3, 3, 3))
sketch6.addConstraint(Sketcher.Constraint("Coincident", 23, 3, 1, 3))
sketch6.addConstraint(Sketcher.Constraint("Coincident", 25, 3, 7, 3))
sketch6.addConstraint(Sketcher.Constraint("Coincident", 26, 3, 3, 3))
sketch6.addConstraint(Sketcher.Constraint("Coincident", 27, 3, 5, 3))
sketch6.addConstraint(Sketcher.Constraint("Equal", 1, 3))
sketch6.addConstraint(Sketcher.Constraint("Equal", 3, 5))
sketch6.addConstraint(Sketcher.Constraint("Equal", 5, 7))
sketch6.addConstraint(Sketcher.Constraint("Equal", 7, 11))
sketch6.addConstraint(Sketcher.Constraint("Equal", 10, 12))
sketch6.addConstraint(Sketcher.Constraint("Equal", 12, 14))
sketch6.addConstraint(Sketcher.Constraint("Equal", 11, 15))
sketch6.addConstraint(Sketcher.Constraint("Equal", 14, 16))
sketch6.addConstraint(Sketcher.Constraint("Equal", 16, 18))
sketch6.addConstraint(Sketcher.Constraint("Equal", 15, 19))
sketch6.addConstraint(Sketcher.Constraint("Equal", 18, 20))
sketch6.addConstraint(Sketcher.Constraint("Equal", 20, 22))
sketch6.addConstraint(Sketcher.Constraint("Equal", 19, 23))
sketch6.addConstraint(Sketcher.Constraint("Equal", 22, 24))
sketch6.addConstraint(Sketcher.Constraint("Equal", 8, 25))
sketch6.addConstraint(Sketcher.Constraint("Equal", 25, 26))
sketch6.addConstraint(Sketcher.Constraint("Equal", 26, 27))
sketch6.addConstraint(Sketcher.Constraint("Symmetric", 3, 3, 5, 3, -2))
sketch6.addConstraint(Sketcher.Constraint("Symmetric", 1, 3, 7, 3, -2))
sketch6.addConstraint(Sketcher.Constraint("Horizontal", 14, 3, 20, 3))
sketch6.addConstraint(Sketcher.Constraint("Horizontal", 2, 2, 5, 2))
sketch6.addConstraint(Sketcher.Constraint("Horizontal", 25, 3, 9, 2))
sketch6.addConstraint(Sketcher.Constraint("Horizontal", 27, 3, 16, 1))
sketch6.addConstraint(Sketcher.Constraint("Vertical", 1, 3, 3, 3))
sketch6.addConstraint(Sketcher.Constraint("Vertical", 0, 2, 3, 2))
sketch6.addConstraint(Sketcher.Constraint("Vertical", 27, 3, 12, 1))
sketch6.addConstraint(Sketcher.Constraint("Radius", 10, 4.0))
sketch6.addConstraint(Sketcher.Constraint("Diameter", 8, 1.4))
sketch6.addConstraint(Sketcher.Constraint("Radius", 1, 3.7))
sketch6.addConstraint(Sketcher.Constraint("DistanceX", -1, 1, 1, 3, 18.0))
sketch6.addConstraint(Sketcher.Constraint("DistanceX", -1, 1, 1, 2, 20.0))
sketch6.addConstraint(Sketcher.Constraint("DistanceY", 1, 3, 3, 3, 56.0))
sketch6.addConstraint(Sketcher.Constraint("DistanceY", 0, 2, 1, 3, 2.0))
sketch6.addConstraint(Sketcher.Constraint("DistanceY", -1, 1, 1, 3, 12.5))
pad5 = body.newObject("PartDesign::Pad", "Pad004")
pad5.Profile = sketch6
pad5.Length = 5

# Sketch on XZ plane
sketch7 = body.newObject("Sketcher::SketchObject", "Sketch006")
sketch7.AttachmentSupport = (doc.getObject("XZ_Plane"), [""])
sketch7.MapMode = "FlatFace"
sketch7.AttachmentOffset = App.Placement(App.Vector(0, 0, -76.5), App.Rotation())
sketch7.addGeometry(Part.LineSegment(App.Vector(-10, 25, 0), App.Vector(10, 25, 0)), False)
sketch7.addGeometry(Part.ArcOfCircle(Part.Circle(App.Vector(10, 18, 0), App.Vector(0, 0, 1), 8), math.radians(-90), math.radians(90)), False)
sketch7.addGeometry(Part.LineSegment(App.Vector(10, 10, 0), App.Vector(-10, 10, 0)), False)
sketch7.addGeometry(Part.ArcOfCircle(Part.Circle(App.Vector(-10, 18, 0), App.Vector(0, 0, 1), 8), math.radians(90), math.radians(270)), False)
sketch7.addConstraint(Sketcher.Constraint("Tangent", 0, 2, 1, 2))
sketch7.addConstraint(Sketcher.Constraint("Tangent", 1, 1, 2, 1))
sketch7.addConstraint(Sketcher.Constraint("Tangent", 2, 2, 3, 2))
sketch7.addConstraint(Sketcher.Constraint("Tangent", 3, 1, 0, 1))
sketch7.addConstraint(Sketcher.Constraint("Horizontal", 0))
sketch7.addConstraint(Sketcher.Constraint("Horizontal", 2))
sketch7.addConstraint(Sketcher.Constraint("Radius", 1, 7.5))
sketch7.addConstraint(Sketcher.Constraint("DistanceX", 0, 1, 0, 2, 20.0))
sketch7.addConstraint(Sketcher.Constraint("DistanceX", -1, 1, 1, 3, 10.0))
sketch7.addConstraint(Sketcher.Constraint("DistanceY", -1, 1, 0, 2, 25.0))
pocket2 = body.newObject("PartDesign::Pocket", "Pocket001")
pocket2.Profile = sketch7
pocket2.Type = "UpToFirst"
pocket2.Reversed = True

# Sketch on XY plane
sketch8 = body.newObject("Sketcher::SketchObject", "Sketch007")
sketch8.AttachmentSupport = (doc.getObject("XY_Plane"), [""])
sketch8.MapMode = "FlatFace"
sketch8.AttachmentOffset = App.Placement(App.Vector(0, 0, 2.5), App.Rotation())
sketch8.addGeometry(Part.LineSegment(App.Vector(-21.7, 57.1, 0), App.Vector(-81.7, 57.1, 0)), False)
sketch8.addGeometry(Part.LineSegment(App.Vector(-81.7, 57.1, 0), App.Vector(-83.7, 56.4, 0)), False)
sketch8.addGeometry(Part.LineSegment(App.Vector(-83.7, 56.4, 0), App.Vector(-83.7, 15.1, 0)), False)
sketch8.addGeometry(Part.LineSegment(App.Vector(-83.7, 15.1, 0), App.Vector(-21.7, 15.1, 0)), False)
sketch8.addGeometry(Part.LineSegment(App.Vector(-21.7, 15.1, 0), App.Vector(-21.7, 57.1, 0)), False)
sketch8.addGeometry(Part.ArcOfCircle(Part.Circle(App.Vector(-25.2, 55.4, 0), App.Vector(0, 0, 1), 0.8), math.radians(-90), math.radians(90)), False)
sketch8.addGeometry(Part.LineSegment(App.Vector(-25.2, 54.6, 0), App.Vector(-80.2, 54.6, 0)), False)
sketch8.addGeometry(Part.ArcOfCircle(Part.Circle(App.Vector(-80.2, 55.4, 0), App.Vector(0, 0, 1), 0.8), math.radians(90), math.radians(270)), False)
sketch8.addGeometry(Part.LineSegment(App.Vector(-80.2, 56.2, 0), App.Vector(-25.2, 56.2, 0)), False)
sketch8.addGeometry(Part.LineSegment(App.Vector(-25.2, 53.6, 0), App.Vector(-25.2, 18.6, 0)), False)
sketch8.addGeometry(Part.LineSegment(App.Vector(-25.2, 18.6, 0), App.Vector(-80.2, 18.6, 0)), False)
sketch8.addGeometry(Part.LineSegment(App.Vector(-80.2, 18.6, 0), App.Vector(-80.2, 53.6, 0)), False)
sketch8.addGeometry(Part.LineSegment(App.Vector(-80.2, 53.6, 0), App.Vector(-25.2, 53.6, 0)), False)
sketch8.addGeometry(Part.LineSegment(App.Vector(-80.2, 17.7, 0), App.Vector(-25.2, 17.7, 0)), False)
sketch8.addGeometry(Part.ArcOfCircle(Part.Circle(App.Vector(-25.2, 16.9, 0), App.Vector(0, 0, 1), 0.8), math.radians(-90), math.radians(90)), False)
sketch8.addGeometry(Part.LineSegment(App.Vector(-25.2, 16.1, 0), App.Vector(-80.2, 16.1, 0)), False)
sketch8.addGeometry(Part.ArcOfCircle(Part.Circle(App.Vector(-80.2, 16.9, 0), App.Vector(0, 0, 1), 0.8), math.radians(90), math.radians(270)), False)
sketch8.addConstraint(Sketcher.Constraint("Coincident", 0, 2, 1, 1))
sketch8.addConstraint(Sketcher.Constraint("Coincident", 1, 2, 2, 1))
sketch8.addConstraint(Sketcher.Constraint("Coincident", 2, 2, 3, 1))
sketch8.addConstraint(Sketcher.Constraint("Coincident", 3, 2, 4, 1))
sketch8.addConstraint(Sketcher.Constraint("Coincident", 4, 2, 0, 1))
sketch8.addConstraint(Sketcher.Constraint("Tangent", 5, 1, 6, 1))
sketch8.addConstraint(Sketcher.Constraint("Tangent", 6, 2, 7, 2))
sketch8.addConstraint(Sketcher.Constraint("Tangent", 7, 1, 8, 1))
sketch8.addConstraint(Sketcher.Constraint("Tangent", 8, 2, 5, 2))
sketch8.addConstraint(Sketcher.Constraint("Coincident", 9, 2, 10, 1))
sketch8.addConstraint(Sketcher.Constraint("Coincident", 10, 2, 11, 1))
sketch8.addConstraint(Sketcher.Constraint("Coincident", 11, 2, 12, 1))
sketch8.addConstraint(Sketcher.Constraint("Coincident", 12, 2, 9, 1))
sketch8.addConstraint(Sketcher.Constraint("Tangent", 13, 2, 14, 2))
sketch8.addConstraint(Sketcher.Constraint("Tangent", 14, 1, 15, 1))
sketch8.addConstraint(Sketcher.Constraint("Tangent", 15, 2, 16, 2))
sketch8.addConstraint(Sketcher.Constraint("Tangent", 16, 1, 13, 1))
sketch8.addConstraint(Sketcher.Constraint("Horizontal", 0))
sketch8.addConstraint(Sketcher.Constraint("Vertical", 2))
sketch8.addConstraint(Sketcher.Constraint("Horizontal", 3))
sketch8.addConstraint(Sketcher.Constraint("Vertical", 4))
sketch8.addConstraint(Sketcher.Constraint("Horizontal", 6))
sketch8.addConstraint(Sketcher.Constraint("Horizontal", 8))
sketch8.addConstraint(Sketcher.Constraint("Vertical", 9))
sketch8.addConstraint(Sketcher.Constraint("Horizontal", 10))
sketch8.addConstraint(Sketcher.Constraint("Vertical", 11))
sketch8.addConstraint(Sketcher.Constraint("Horizontal", 12))
sketch8.addConstraint(Sketcher.Constraint("Horizontal", 13))
sketch8.addConstraint(Sketcher.Constraint("Horizontal", 15))
sketch8.addConstraint(Sketcher.Constraint("Equal", 7, 14))
sketch8.addConstraint(Sketcher.Constraint("Vertical", 5, 3, 14, 3))
sketch8.addConstraint(Sketcher.Constraint("Vertical", 7, 3, 16, 3))
sketch8.addConstraint(Sketcher.Constraint("Vertical", 8, 2, 9, 2))
sketch8.addConstraint(Sketcher.Constraint("Vertical", 7, 1, 10, 2))
sketch8.addConstraint(Sketcher.Constraint("Radius", 5, 0.8))
sketch8.addConstraint(Sketcher.Constraint("DistanceX", 3, 1, 3, 2, 62.0))
sketch8.addConstraint(Sketcher.Constraint("DistanceX", 6, 2, 6, 1, 55.0))
sketch8.addConstraint(Sketcher.Constraint("DistanceY", 4, 1, 4, 2, 42.0))
sketch8.addConstraint(Sketcher.Constraint("DistanceY", 9, 2, 9, 1, 35.0))
sketch8.addConstraint(Sketcher.Constraint("DistanceY", 14, 3, 5, 3, 38.5))
sketch8.addConstraint(Sketcher.Constraint("DistanceX", 1, 2, 7, 3, 3.5))
sketch8.addConstraint(Sketcher.Constraint("DistanceY", 3, 2, 9, 2, 3.5))
sketch8.addConstraint(Sketcher.Constraint("DistanceY", 7, 3, 0, 2, 1.75))
sketch8.addConstraint(Sketcher.Constraint("Distance", 1, 2.13547))
sketch8.addConstraint(Sketcher.Constraint("DistanceX", 0, 2, 0, 1, 59.996196))
sketch8.addConstraint(Sketcher.Constraint("DistanceY", -1, 1, 5, 3, 55.396318))
sketch8.addConstraint(Sketcher.Constraint("DistanceX", 0, 2, -1, 1, 81.67428))
pad6 = body.newObject("PartDesign::Pad", "Pad005")
pad6.Profile = sketch8
pad6.Length = 12

doc.recompute()
